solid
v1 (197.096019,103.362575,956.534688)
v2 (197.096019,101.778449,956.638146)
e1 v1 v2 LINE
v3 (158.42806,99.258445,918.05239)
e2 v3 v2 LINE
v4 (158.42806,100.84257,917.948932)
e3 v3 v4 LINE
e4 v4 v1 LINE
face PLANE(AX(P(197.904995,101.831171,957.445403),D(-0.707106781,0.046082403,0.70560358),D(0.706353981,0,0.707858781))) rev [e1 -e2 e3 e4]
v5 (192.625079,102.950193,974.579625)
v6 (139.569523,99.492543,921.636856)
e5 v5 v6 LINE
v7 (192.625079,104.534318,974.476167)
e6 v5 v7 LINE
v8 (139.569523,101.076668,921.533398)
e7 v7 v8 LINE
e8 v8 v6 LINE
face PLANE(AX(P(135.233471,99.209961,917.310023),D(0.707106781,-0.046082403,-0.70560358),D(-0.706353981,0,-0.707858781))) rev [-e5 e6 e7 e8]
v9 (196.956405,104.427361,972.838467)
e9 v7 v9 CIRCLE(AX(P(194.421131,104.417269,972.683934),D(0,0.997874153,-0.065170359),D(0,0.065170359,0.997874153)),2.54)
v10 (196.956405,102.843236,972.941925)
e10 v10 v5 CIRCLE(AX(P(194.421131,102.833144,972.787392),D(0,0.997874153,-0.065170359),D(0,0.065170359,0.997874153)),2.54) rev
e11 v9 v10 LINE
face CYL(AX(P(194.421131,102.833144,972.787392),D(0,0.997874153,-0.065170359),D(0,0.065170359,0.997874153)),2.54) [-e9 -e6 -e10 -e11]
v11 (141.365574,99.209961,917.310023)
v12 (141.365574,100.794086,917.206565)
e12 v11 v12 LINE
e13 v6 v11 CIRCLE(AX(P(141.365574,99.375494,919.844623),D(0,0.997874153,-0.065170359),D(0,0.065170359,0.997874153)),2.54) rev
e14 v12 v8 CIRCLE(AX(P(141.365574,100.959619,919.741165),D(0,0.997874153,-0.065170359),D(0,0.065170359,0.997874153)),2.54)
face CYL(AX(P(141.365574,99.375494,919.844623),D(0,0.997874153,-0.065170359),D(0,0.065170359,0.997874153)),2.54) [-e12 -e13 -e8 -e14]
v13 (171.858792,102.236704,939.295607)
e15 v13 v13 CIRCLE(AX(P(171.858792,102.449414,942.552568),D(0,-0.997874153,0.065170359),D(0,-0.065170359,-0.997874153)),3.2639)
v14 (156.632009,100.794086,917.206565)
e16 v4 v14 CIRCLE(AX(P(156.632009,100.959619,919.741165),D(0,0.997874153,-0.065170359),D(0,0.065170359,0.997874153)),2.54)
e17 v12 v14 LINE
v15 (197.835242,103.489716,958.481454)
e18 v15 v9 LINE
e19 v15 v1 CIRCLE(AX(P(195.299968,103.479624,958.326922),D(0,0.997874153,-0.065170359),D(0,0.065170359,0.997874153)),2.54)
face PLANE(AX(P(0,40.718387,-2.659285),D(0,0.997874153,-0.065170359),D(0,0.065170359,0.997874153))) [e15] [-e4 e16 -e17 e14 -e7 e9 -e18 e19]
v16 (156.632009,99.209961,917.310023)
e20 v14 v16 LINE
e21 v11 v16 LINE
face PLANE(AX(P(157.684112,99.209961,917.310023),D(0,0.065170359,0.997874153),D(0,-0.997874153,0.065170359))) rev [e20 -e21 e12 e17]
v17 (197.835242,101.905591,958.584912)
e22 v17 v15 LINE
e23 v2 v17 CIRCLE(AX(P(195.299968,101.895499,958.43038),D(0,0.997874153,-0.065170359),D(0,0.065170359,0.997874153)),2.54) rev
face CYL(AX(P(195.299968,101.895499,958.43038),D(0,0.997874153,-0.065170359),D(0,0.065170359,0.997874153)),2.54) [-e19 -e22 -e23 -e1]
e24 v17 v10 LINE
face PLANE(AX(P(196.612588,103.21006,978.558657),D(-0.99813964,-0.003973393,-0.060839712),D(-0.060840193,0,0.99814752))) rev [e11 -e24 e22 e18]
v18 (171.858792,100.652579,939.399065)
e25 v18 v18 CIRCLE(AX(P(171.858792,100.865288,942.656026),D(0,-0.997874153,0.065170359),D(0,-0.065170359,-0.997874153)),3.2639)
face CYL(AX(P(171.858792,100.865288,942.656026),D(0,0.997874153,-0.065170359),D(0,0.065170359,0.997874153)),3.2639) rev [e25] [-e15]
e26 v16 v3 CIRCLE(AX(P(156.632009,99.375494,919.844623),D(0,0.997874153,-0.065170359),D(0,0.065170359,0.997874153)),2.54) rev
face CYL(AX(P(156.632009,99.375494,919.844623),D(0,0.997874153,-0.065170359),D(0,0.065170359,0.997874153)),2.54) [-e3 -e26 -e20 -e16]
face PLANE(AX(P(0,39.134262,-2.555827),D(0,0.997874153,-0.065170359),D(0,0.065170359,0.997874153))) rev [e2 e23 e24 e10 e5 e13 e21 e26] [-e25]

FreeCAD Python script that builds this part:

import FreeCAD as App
import Part
import Sketcher
from FreeCAD import Vector
Q = App.Units.Quantity


def edges_at(feature, points):
    """Names of the edges that pass closest to the given points."""
    edges = feature.Shape.Edges
    near = lambda p: min(range(len(edges)), key=lambda i: edges[i].distToShape(Part.Vertex(*p))[0])
    return sorted({f"Edge{near(p) + 1}" for p in points})


def add_polygon(sketch, points):
    """Adds a closed chain of lines whose ends are joined by coincident constraints."""
    first, n = sketch.GeometryCount, len(points)
    for a, b in zip(points, points[1:] + points[:1]):
        sketch.addGeometry(Part.LineSegment(App.Vector(*a, 0), App.Vector(*b, 0)), False)
    for i in range(n):
        sketch.addConstraint(Sketcher.Constraint("Coincident", first + i, 2, first + (i + 1) % n, 1))

doc = App.newDocument("Part")
params = doc.addObject("Spreadsheet::Sheet", "Params")
for row, (alias, value) in enumerate([
    ("sketch1_diameter", "0.257 in"),
    ("pad1_length", "0.0625 in"),
    ("fillet_radius", "0.1 in"),
], start=1):
    params.set(f"A{row}", alias)
    params.set(f"B{row}", "=" + value)
    params.setAlias(f"B{row}", alias)

body = doc.addObject("PartDesign::Body", "Body")

# Sketch on an angled plane
sketch1 = doc.addObject("Sketcher::SketchObject", "Sketch")
body.addObject(sketch1)
sketch1.Placement = App.Placement(Vector(0, 40.718387, -2.659285), App.Rotation(Vector(-1, 0, 0), Vector(0, -0.065170359, -0.997874153), Vector(0, -0.997874153, 0.065170359), "ZXY"))
add_polygon(sketch1, [(-157.684112, -921.825511), (-197.904995, -962.046395), (-196.612588, -983.204628), (-135.233471, -921.825511)])  # lines 0-3
sketch1.addGeometry(Part.Circle(Vector(-171.858792, -947.225511, 0), Vector(0, 0, 1), 3.2639), False)  # 4
sketch1.addConstraint(Sketcher.Constraint("Horizontal", 3))
sketch1.addConstraint(Sketcher.Constraint("Parallel", 0, 2))
sketch1.addConstraint(Sketcher.Constraint("Diameter", 4, Q("0.257 in")))
sketch1.addConstraint(Sketcher.Constraint("Angle", 0, Q("-135 deg")))
sketch1.addConstraint(Sketcher.Constraint("DistanceY", 4, 3, 2, 2, Q("1 in")))
sketch1.addConstraint(Sketcher.Constraint("DistanceX", 3, 2, 3, 1, 22.45064))
sketch1.addConstraint(Sketcher.Constraint("Distance", 0, 56.880919))
sketch1.addConstraint(Sketcher.Constraint("Distance", 1, 21.197668))
sketch1.addConstraint(Sketcher.Constraint("DistanceX", 4, 3, -1, 1, 171.858792))
sketch1.addConstraint(Sketcher.Constraint("DistanceY", 4, 3, -1, 1, 947.225511))
sketch1.addConstraint(Sketcher.Constraint("DistanceX", 2, 2, -1, 1, 135.233471))
sketch1.setExpression("Constraints[6]", "Params.sketch1_diameter")
pad1 = doc.addObject("PartDesign::Pad", "Pad")
body.addObject(pad1)
pad1.Profile = sketch1
pad1.setExpression("Length", "Params.pad1_length")
doc.recompute()

fillet = doc.addObject("PartDesign::Fillet", "Fillet")
body.addObject(fillet)
fillet.Base = (pad1, edges_at(pad1, [
    (197.905, 102.623, 957.394),
    (157.684, 100.002, 917.258),
    (135.233, 100.002, 917.258),
    (196.613, 104.002, 978.507),
]))
fillet.setExpression("Radius", "Params.fillet_radius")

doc.recompute()
